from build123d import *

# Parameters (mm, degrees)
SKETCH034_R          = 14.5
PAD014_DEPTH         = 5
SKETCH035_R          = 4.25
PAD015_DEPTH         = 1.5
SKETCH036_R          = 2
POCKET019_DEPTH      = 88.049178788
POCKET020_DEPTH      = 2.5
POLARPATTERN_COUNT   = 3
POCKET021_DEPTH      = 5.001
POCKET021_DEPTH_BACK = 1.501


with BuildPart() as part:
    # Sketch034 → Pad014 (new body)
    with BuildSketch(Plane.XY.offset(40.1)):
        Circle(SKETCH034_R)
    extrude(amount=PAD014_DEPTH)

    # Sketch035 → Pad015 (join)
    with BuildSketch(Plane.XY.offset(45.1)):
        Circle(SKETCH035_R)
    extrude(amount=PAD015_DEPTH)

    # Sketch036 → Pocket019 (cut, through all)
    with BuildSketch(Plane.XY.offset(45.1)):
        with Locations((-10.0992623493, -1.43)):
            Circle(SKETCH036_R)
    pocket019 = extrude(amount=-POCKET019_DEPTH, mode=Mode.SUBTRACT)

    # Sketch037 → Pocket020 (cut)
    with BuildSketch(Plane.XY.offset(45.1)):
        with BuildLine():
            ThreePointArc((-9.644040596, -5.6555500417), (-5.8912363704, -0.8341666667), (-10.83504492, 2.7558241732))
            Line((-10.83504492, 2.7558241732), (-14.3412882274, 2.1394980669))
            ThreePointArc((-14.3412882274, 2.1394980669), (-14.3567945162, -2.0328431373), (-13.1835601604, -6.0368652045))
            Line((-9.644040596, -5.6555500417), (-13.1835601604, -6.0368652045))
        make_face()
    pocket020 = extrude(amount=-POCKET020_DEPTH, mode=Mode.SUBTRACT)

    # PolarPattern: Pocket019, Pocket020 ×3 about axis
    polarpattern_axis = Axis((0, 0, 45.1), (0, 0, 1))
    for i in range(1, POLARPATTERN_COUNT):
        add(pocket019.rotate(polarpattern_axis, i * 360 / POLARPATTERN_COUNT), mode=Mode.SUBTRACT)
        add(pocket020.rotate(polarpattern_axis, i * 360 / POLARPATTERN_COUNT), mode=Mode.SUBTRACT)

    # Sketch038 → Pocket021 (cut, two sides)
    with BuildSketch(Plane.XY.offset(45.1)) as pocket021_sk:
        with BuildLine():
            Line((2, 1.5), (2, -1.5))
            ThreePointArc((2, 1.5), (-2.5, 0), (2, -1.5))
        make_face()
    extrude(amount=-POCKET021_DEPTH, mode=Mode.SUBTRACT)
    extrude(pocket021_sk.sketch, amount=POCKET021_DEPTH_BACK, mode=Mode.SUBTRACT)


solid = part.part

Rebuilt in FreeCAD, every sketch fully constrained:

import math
import FreeCAD as App
import Part
import Sketcher

V = App.Vector

doc = App.newDocument("Part")
params = doc.addObject("Spreadsheet::Sheet", "Params")
for row, (alias, value) in enumerate([
    ("sketch1_diameter", "29 mm"),
    ("pad1_length", "5 mm"),
    ("sketch2_diameter", "8.5 mm"),
    ("pad2_length", "1.5 mm"),
    ("sketch3_diameter", "4 mm"),
    ("sketch4_radius", "14.5 mm"),
    ("sketch4_radius2", "4.25 mm"),
    ("sketch4_length", "3.56 mm"),
    ("pocket2_length", "2.5 mm"),
    ("sketch5_radius", "2.5 mm"),
    ("sketch5_height", "3 mm"),
], start=1):
    params.set(f"A{row}", alias)
    params.set(f"B{row}", "=" + value)
    params.setAlias(f"B{row}", alias)

body = doc.addObject("PartDesign::Body", "Body")

# Sketch on XY plane
sketch1 = body.newObject("Sketcher::SketchObject", "Sketch")
sketch1.AttachmentSupport = (doc.getObject("XY_Plane"), [""])
sketch1.MapMode = "FlatFace"
sketch1.AttachmentOffset = App.Placement(V(0, 0, 40.1), App.Rotation())
sketch1.addGeometry(Part.Circle(V(0, 0, 0), V(0, 0, 1), 14), False)
sketch1.addConstraint(Sketcher.Constraint("Coincident", 0, 3, -1, 1))
sketch1.addConstraint(Sketcher.Constraint("Diameter", 0, 29.0))
sketch1.setExpression("Constraints[1]", "Params.sketch1_diameter")
pad1 = body.newObject("PartDesign::Pad", "Pad")
pad1.Profile = sketch1
pad1.setExpression("Length", "Params.pad1_length")

# Sketch on XY plane
sketch2 = body.newObject("Sketcher::SketchObject", "Sketch001")
sketch2.AttachmentSupport = (doc.getObject("XY_Plane"), [""])
sketch2.MapMode = "FlatFace"
sketch2.AttachmentOffset = App.Placement(V(0, 0, 45.1), App.Rotation())
sketch2.addGeometry(Part.Circle(V(0, 0, 0), V(0, 0, 1), 4.2), False)
sketch2.addConstraint(Sketcher.Constraint("Coincident", 0, 3, -1, 1))
sketch2.addConstraint(Sketcher.Constraint("Diameter", 0, 8.5))
sketch2.setExpression("Constraints[1]", "Params.sketch2_diameter")
pad2 = body.newObject("PartDesign::Pad", "Pad001")
pad2.Profile = sketch2
pad2.setExpression("Length", "Params.pad2_length")

# Sketch on XY plane
sketch3 = body.newObject("Sketcher::SketchObject", "Sketch002")
sketch3.AttachmentSupport = (doc.getObject("XY_Plane"), [""])
sketch3.MapMode = "FlatFace"
sketch3.AttachmentOffset = App.Placement(V(0, 0, 45.1), App.Rotation())
sketch3.addGeometry(Part.Circle(V(-10.1, -1.4, 0), V(0, 0, 1), 2), False)
sketch3.addConstraint(Sketcher.Constraint("Diameter", 0, 4.0))
sketch3.addConstraint(Sketcher.Constraint("DistanceY", 0, 3, -1, 1, 1.43))
sketch3.addConstraint(Sketcher.Constraint("DistanceX", 0, 3, -1, 1, 10.099262))
sketch3.setExpression("Constraints[0]", "Params.sketch3_diameter")
pocket1 = body.newObject("PartDesign::Pocket", "Pocket")
pocket1.Profile = sketch3
pocket1.Type = "ThroughAll"

# Sketch on XY plane
sketch4 = body.newObject("Sketcher::SketchObject", "Sketch003")
sketch4.AttachmentSupport = (doc.getObject("XY_Plane"), [""])
sketch4.MapMode = "FlatFace"
sketch4.AttachmentOffset = App.Placement(V(0, 0, 45.1), App.Rotation())
sketch4.addGeometry(Part.ArcOfCircle(Part.Circle(V(-10.1, -1.4, 0), V(0, 0, 1), 4.2), math.radians(-84), math.radians(100)), False)
sketch4.addGeometry(Part.LineSegment(V(-10.8, 2.8, 0), V(-14.3, 2.1, 0)), False)
sketch4.addGeometry(Part.ArcOfCircle(Part.Circle(V(0, 0, 0), V(0, 0, 1), 14.5), math.radians(172), math.radians(205)), False)
sketch4.addGeometry(Part.LineSegment(V(-13.2, -6, 0), V(-9.6, -5.7, 0)), False)
sketch4.addConstraint(Sketcher.Constraint("Tangent", 0, 2, 1, 1))
sketch4.addConstraint(Sketcher.Constraint("Coincident", 1, 2, 2, 1))
sketch4.addConstraint(Sketcher.Constraint("Coincident", 2, 2, 3, 1))
sketch4.addConstraint(Sketcher.Constraint("Tangent", 3, 2, 0, 1))
sketch4.addConstraint(Sketcher.Constraint("Coincident", 2, 3, -1, 1))
sketch4.addConstraint(Sketcher.Constraint("Equal", 1, 3))
sketch4.addConstraint(Sketcher.Constraint("Radius", 2, 14.5))
sketch4.addConstraint(Sketcher.Constraint("Radius", 0, 4.25))
sketch4.addConstraint(Sketcher.Constraint("Distance", 1, 3.56))
sketch4.addConstraint(Sketcher.Constraint("DistanceY", 0, 3, -1, 1, 1.43))
sketch4.addConstraint(Sketcher.Constraint("DistanceY", -1, 1, 1, 2, 2.139498))
sketch4.setExpression("Constraints[6]", "Params.sketch4_radius")
sketch4.setExpression("Constraints[7]", "Params.sketch4_radius2")
sketch4.setExpression("Constraints[8]", "Params.sketch4_length")
pocket2 = body.newObject("PartDesign::Pocket", "Pocket001")
pocket2.Profile = sketch4
pocket2.setExpression("Length", "Params.pocket2_length")
doc.recompute()

polarpattern = body.newObject("PartDesign::PolarPattern", "PolarPattern")
polarpattern.Originals = [pocket1, pocket2]
polarpattern.Axis = (doc.getObject("Z_Axis"), [""])
polarpattern.Angle = 360
polarpattern.Occurrences = 3
body.Tip = polarpattern

# Sketch on XY plane
sketch5 = body.newObject("Sketcher::SketchObject", "Sketch004")
sketch5.AttachmentSupport = (doc.getObject("XY_Plane"), [""])
sketch5.MapMode = "FlatFace"
sketch5.AttachmentOffset = App.Placement(V(0, 0, 45.1), App.Rotation())
sketch5.addGeometry(Part.LineSegment(V(2, -1.5, 0), V(2, 1.5, 0)), False)
sketch5.addGeometry(Part.ArcOfCircle(Part.Circle(V(0, 0, 0), V(0, 0, 1), 2.5), math.radians(37), math.radians(323)), False)
sketch5.addConstraint(Sketcher.Constraint("Coincident", 0, 1, 1, 2))
sketch5.addConstraint(Sketcher.Constraint("Coincident", 1, 1, 0, 2))
sketch5.addConstraint(Sketcher.Constraint("Vertical", 0))
sketch5.addConstraint(Sketcher.Constraint("Coincident", 1, 3, -1, 1))
sketch5.addConstraint(Sketcher.Constraint("Radius", 1, 2.5))
sketch5.addConstraint(Sketcher.Constraint("DistanceY", 0, 1, 0, 2, 3.0))
sketch5.setExpression("Constraints[4]", "Params.sketch5_radius")
sketch5.setExpression("Constraints[5]", "Params.sketch5_height")
pocket3 = body.newObject("PartDesign::Pocket", "Pocket002")
pocket3.Profile = sketch5
pocket3.Type = "ThroughAll"
pocket3.Midplane = True

doc.recompute()
